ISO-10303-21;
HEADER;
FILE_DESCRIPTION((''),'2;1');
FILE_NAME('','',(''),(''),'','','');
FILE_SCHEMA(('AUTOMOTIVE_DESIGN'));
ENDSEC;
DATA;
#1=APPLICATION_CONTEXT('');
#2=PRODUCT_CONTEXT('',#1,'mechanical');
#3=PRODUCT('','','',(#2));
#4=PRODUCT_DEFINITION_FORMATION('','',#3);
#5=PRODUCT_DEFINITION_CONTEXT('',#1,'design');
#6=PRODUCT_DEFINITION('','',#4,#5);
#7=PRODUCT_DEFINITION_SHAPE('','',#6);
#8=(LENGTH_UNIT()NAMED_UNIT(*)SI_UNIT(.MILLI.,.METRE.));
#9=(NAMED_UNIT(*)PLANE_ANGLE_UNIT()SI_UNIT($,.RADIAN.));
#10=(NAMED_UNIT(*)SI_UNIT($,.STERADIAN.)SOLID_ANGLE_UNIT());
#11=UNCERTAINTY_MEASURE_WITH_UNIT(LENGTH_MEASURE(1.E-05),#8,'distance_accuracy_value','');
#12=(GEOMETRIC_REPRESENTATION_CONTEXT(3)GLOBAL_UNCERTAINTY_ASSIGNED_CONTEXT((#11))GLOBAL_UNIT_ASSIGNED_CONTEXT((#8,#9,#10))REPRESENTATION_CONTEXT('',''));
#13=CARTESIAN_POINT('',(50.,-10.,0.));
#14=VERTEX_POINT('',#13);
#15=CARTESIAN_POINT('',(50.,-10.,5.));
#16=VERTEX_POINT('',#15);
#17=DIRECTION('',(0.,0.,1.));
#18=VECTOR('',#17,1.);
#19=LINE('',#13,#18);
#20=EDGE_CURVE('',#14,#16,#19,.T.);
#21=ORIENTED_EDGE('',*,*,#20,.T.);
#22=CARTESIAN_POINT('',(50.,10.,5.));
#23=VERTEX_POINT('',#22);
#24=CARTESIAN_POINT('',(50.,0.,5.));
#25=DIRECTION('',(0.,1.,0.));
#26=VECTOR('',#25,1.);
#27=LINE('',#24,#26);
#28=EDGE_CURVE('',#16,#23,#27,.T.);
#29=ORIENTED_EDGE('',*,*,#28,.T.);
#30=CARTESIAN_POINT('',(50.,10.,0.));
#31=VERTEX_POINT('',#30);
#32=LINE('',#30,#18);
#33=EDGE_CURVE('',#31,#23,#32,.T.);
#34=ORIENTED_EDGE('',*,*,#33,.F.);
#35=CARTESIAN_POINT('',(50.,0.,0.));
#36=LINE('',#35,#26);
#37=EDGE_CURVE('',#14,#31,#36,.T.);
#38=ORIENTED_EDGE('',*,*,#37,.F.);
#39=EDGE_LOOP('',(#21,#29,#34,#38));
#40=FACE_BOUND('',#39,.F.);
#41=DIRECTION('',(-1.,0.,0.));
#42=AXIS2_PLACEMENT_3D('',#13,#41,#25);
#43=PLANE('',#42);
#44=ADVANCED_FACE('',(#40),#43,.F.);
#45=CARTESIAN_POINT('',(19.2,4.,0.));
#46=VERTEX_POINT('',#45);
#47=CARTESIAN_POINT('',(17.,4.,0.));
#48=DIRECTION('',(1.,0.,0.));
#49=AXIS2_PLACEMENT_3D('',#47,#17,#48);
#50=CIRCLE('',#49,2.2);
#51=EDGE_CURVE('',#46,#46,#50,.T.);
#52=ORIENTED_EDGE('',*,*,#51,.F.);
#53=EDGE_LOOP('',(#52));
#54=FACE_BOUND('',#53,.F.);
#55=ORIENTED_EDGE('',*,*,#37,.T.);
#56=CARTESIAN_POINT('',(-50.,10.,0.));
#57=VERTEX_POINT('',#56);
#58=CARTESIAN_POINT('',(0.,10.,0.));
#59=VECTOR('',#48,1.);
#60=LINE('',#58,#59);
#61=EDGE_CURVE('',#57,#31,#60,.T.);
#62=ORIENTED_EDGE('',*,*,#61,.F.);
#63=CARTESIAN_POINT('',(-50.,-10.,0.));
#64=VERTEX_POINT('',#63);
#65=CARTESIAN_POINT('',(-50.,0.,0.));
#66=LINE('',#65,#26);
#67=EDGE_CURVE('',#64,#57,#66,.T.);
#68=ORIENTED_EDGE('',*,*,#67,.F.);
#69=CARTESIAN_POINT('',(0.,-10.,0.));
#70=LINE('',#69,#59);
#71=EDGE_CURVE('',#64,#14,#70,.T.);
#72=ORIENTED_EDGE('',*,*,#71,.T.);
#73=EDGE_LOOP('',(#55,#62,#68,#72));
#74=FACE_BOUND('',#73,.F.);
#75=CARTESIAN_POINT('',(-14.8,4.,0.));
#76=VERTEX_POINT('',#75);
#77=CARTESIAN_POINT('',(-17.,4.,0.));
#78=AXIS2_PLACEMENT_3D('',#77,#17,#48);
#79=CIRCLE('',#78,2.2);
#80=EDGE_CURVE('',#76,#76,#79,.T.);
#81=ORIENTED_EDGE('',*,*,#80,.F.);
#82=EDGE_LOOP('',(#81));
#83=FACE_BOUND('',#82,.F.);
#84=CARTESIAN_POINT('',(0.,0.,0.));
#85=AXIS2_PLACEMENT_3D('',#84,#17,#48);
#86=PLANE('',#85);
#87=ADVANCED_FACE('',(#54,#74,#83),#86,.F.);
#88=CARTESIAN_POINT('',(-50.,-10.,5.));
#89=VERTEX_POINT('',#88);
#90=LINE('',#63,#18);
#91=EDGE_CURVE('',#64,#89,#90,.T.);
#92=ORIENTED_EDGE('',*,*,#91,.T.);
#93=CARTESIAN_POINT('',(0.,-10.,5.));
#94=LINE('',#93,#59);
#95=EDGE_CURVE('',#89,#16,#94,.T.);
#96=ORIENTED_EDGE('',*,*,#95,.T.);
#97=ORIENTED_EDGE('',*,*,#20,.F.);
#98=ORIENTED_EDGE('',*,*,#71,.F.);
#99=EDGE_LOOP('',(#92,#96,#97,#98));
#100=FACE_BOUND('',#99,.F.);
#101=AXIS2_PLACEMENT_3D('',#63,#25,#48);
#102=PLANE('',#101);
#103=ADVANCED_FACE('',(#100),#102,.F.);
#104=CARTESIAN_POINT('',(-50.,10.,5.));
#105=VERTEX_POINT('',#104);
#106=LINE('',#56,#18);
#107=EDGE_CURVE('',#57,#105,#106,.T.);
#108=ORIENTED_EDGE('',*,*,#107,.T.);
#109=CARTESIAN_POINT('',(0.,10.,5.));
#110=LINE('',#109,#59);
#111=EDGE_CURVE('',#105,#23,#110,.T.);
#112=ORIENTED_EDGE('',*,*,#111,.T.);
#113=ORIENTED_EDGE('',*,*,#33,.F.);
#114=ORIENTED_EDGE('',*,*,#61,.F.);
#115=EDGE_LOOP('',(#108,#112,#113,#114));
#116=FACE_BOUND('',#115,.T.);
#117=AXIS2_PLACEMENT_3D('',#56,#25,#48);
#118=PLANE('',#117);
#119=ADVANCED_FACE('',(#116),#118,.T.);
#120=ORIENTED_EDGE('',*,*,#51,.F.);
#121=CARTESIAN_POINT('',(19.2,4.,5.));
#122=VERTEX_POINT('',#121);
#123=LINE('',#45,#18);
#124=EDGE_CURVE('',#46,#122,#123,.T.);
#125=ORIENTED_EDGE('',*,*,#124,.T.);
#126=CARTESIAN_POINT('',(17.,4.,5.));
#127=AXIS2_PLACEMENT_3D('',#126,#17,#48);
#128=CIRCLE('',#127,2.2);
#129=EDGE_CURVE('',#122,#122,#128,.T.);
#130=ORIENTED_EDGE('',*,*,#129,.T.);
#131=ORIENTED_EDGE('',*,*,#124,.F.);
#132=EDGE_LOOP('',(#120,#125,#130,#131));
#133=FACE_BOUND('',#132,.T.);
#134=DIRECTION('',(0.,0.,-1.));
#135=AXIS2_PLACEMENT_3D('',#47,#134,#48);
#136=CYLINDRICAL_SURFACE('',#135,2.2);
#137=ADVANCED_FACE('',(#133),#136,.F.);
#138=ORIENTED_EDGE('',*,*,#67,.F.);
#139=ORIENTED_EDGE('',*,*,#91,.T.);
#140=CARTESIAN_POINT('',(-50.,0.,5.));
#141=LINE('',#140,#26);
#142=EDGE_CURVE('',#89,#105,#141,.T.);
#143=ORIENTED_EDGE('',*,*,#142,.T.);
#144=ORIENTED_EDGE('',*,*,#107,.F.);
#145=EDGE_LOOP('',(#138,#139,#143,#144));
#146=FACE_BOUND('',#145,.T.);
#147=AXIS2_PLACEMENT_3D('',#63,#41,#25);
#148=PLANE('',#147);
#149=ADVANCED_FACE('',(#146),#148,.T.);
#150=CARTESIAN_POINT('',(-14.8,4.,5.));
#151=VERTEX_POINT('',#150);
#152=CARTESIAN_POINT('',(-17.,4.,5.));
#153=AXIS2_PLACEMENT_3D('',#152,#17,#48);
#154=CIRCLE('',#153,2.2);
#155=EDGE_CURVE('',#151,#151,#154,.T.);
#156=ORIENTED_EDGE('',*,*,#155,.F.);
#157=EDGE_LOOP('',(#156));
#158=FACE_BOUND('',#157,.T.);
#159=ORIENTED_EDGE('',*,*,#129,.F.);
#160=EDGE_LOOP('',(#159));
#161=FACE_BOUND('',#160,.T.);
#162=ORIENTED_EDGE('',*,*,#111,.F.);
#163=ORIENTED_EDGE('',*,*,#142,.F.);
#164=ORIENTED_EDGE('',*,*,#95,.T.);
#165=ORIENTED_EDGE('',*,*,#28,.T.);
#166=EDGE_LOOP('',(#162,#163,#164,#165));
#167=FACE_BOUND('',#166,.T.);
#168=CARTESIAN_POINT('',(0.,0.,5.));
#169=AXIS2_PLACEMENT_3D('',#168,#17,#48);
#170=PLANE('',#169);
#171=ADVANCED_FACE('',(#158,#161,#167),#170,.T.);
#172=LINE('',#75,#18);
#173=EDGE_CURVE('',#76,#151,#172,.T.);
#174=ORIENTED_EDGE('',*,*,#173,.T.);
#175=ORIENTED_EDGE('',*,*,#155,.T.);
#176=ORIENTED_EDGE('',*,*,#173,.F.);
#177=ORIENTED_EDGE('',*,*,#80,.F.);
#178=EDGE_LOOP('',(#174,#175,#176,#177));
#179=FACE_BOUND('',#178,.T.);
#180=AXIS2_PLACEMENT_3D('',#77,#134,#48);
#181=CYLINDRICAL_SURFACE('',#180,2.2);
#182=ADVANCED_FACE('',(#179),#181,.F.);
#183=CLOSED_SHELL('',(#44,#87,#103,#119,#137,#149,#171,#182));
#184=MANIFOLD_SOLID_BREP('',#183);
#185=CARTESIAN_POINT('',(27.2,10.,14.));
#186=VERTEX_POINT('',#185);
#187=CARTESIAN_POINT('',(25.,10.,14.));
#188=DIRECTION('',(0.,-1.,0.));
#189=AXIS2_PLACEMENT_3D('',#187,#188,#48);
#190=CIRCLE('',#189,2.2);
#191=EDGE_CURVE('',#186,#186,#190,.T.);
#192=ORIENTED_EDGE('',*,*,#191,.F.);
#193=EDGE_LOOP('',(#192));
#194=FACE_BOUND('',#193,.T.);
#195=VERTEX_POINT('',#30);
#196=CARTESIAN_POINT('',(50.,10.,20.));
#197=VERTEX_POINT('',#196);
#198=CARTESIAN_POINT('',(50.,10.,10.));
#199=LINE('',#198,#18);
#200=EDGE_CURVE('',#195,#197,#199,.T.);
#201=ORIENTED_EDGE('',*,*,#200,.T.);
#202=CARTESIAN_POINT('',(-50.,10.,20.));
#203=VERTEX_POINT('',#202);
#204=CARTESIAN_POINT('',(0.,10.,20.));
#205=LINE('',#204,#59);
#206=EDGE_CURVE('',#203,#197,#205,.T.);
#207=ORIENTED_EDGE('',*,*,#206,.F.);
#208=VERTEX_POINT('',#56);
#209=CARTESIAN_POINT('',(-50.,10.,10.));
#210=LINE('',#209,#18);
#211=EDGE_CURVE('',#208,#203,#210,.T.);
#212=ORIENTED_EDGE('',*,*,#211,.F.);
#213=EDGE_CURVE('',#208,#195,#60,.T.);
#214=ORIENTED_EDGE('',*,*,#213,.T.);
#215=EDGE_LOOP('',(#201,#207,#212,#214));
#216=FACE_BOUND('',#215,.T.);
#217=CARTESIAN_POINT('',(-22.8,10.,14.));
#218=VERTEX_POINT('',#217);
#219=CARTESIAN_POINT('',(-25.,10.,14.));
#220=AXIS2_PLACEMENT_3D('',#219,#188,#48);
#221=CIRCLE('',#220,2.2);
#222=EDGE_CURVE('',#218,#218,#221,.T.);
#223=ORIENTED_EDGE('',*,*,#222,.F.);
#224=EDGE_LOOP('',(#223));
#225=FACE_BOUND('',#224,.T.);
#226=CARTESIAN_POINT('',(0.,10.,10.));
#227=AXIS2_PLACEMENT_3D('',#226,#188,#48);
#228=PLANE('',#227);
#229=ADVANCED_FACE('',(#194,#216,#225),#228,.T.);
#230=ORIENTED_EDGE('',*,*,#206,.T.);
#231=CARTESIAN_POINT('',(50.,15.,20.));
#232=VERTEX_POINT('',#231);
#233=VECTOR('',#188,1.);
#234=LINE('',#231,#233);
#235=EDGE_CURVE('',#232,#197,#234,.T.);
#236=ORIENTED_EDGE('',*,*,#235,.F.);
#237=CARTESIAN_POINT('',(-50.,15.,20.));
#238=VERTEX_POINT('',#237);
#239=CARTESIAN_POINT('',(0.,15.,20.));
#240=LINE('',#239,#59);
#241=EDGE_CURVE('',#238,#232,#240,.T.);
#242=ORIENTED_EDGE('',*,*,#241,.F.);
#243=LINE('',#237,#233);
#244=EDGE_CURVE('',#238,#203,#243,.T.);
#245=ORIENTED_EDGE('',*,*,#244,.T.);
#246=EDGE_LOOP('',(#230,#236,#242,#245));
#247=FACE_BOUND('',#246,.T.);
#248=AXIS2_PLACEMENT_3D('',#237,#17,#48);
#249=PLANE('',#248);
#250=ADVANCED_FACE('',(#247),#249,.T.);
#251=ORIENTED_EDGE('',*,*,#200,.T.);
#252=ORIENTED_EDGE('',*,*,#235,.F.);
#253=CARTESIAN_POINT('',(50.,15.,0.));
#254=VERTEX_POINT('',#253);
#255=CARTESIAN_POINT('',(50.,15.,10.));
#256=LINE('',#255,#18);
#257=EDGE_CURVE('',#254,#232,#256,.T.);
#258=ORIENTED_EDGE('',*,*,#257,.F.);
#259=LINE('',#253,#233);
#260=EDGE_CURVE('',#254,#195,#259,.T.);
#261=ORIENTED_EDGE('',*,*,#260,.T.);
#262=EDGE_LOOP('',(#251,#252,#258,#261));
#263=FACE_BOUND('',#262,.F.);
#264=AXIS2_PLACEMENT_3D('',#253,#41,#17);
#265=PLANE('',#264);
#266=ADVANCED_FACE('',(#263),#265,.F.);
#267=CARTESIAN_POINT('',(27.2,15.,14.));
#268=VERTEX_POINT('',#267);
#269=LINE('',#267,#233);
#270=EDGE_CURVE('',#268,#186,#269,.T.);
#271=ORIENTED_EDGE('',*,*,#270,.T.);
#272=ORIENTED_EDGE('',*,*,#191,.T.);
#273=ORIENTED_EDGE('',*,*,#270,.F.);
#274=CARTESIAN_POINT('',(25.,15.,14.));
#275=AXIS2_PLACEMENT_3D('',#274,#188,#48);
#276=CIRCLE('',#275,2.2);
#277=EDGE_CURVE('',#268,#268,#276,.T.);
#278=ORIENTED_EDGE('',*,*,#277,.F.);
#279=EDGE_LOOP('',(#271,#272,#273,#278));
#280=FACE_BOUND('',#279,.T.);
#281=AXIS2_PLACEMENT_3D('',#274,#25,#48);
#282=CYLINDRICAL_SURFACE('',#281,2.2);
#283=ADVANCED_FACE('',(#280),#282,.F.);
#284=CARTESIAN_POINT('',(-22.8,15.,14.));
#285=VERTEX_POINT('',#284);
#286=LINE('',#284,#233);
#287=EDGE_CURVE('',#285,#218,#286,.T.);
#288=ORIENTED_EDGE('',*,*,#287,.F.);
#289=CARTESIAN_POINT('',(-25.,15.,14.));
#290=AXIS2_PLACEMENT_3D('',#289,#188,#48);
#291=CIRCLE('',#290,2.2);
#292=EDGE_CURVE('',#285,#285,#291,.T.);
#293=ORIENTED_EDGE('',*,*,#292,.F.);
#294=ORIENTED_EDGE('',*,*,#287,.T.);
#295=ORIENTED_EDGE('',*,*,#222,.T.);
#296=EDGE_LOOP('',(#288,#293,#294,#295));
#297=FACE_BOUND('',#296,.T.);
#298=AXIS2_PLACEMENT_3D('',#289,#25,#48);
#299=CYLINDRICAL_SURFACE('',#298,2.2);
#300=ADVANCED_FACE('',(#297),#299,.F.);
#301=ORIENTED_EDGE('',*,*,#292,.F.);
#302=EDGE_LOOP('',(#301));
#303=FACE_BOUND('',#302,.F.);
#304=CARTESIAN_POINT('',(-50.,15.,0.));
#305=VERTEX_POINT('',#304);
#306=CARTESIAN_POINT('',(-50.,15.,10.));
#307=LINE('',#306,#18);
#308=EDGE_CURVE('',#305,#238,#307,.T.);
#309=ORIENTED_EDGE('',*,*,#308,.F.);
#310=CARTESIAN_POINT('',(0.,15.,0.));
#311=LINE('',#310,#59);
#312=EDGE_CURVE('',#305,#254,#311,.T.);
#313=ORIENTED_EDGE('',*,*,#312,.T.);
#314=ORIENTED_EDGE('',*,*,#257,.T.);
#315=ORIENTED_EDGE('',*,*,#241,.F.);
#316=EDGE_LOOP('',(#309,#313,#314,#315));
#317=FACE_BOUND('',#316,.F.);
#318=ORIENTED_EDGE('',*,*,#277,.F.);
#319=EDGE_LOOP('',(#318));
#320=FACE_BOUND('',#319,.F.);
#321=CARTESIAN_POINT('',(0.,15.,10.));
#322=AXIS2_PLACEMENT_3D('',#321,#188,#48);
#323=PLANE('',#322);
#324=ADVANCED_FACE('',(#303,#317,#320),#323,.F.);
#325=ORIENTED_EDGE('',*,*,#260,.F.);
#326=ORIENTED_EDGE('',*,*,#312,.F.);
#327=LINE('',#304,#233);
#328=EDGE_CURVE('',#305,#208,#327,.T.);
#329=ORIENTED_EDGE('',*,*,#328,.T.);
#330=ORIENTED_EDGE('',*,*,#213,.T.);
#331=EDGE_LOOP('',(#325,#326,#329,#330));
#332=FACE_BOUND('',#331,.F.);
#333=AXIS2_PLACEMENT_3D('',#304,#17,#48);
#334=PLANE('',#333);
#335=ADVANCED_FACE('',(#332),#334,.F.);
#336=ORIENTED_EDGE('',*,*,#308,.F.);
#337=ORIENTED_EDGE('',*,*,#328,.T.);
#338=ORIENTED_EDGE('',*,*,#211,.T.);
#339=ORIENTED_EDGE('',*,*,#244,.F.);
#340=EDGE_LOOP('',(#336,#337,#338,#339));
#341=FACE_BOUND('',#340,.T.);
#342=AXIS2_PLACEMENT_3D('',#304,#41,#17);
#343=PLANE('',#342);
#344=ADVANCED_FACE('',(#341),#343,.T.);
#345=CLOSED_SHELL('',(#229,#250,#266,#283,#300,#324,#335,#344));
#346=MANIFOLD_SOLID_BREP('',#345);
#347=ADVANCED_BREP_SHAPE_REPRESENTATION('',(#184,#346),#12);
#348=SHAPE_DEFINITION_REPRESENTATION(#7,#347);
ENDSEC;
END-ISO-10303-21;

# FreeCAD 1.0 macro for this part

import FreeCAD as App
import Part
import Sketcher
Q = App.Units.Quantity


def add_polygon(sketch, points):
    """Adds a closed chain of lines whose ends are joined by coincident constraints."""
    first, n = sketch.GeometryCount, len(points)
    for a, b in zip(points, points[1:] + points[:1]):
        sketch.addGeometry(Part.LineSegment(App.Vector(*a, 0), App.Vector(*b, 0)), False)
    for i in range(n):
        sketch.addConstraint(Sketcher.Constraint("Coincident", first + i, 2, first + (i + 1) % n, 1))

doc = App.newDocument("Part")
body = doc.addObject("PartDesign::Body", "Body")

sketch1 = doc.addObject("Sketcher::SketchObject", "Sketch")
body.addObject(sketch1)
sketch1.AttachmentSupport = (doc.XY_Plane, [""])
sketch1.MapMode = "FlatFace"
add_polygon(sketch1, [(-50, 10), (-50, -10), (50, -10), (50, 10)])
sketch1.addGeometry(Part.Circle(App.Vector(-17, 4, 0), App.Vector(0, 0, 1), 2.2), False)
sketch1.addGeometry(Part.Circle(App.Vector(17, 4, 0), App.Vector(0, 0, 1), 2.2), False)
sketch1.addConstraint([
    Sketcher.Constraint("Vertical", 0),
    Sketcher.Constraint("Horizontal", 1),
    Sketcher.Constraint("Vertical", 2),
    Sketcher.Constraint("Horizontal", 3),
    Sketcher.Constraint("Equal", 4, 5),
    Sketcher.Constraint("Symmetric", 0, 2, 2, 2, -1, 1),
    Sketcher.Constraint("Symmetric", 4, 3, 5, 3, -2),
    Sketcher.Constraint("Diameter", 4, Q("4.4 mm")),
    Sketcher.Constraint("DistanceX", 1, 1, 1, 2, Q("100 mm")),
    Sketcher.Constraint("DistanceY", 0, 2, 0, 1, Q("20 mm")),
    Sketcher.Constraint("DistanceX", 4, 3, -1, 1, Q("17 mm")),
    Sketcher.Constraint("DistanceY", -1, 1, 4, 3, Q("4 mm")),
])
pad1 = doc.addObject("PartDesign::Pad", "Pad")
body.addObject(pad1)
pad1.Profile = sketch1
pad1.Length = 5
body2 = doc.addObject("PartDesign::Body", "Body001")

sketch2 = doc.addObject("Sketcher::SketchObject", "Sketch001")
body2.addObject(sketch2)
sketch2.AttachmentSupport = (doc.getObject("XZ_Plane001"), [""])
sketch2.MapMode = "FlatFace"
sketch2.AttachmentOffset = App.Placement(App.Vector(0, 0, -15), App.Rotation())
add_polygon(sketch2, [(-50, 20), (-50, 0), (50, 0), (50, 20)])
sketch2.addGeometry(Part.Circle(App.Vector(-25, 14, 0), App.Vector(0, 0, 1), 2.2), False)
sketch2.addGeometry(Part.Circle(App.Vector(25, 14, 0), App.Vector(0, 0, 1), 2.2), False)
sketch2.addConstraint([
    Sketcher.Constraint("Vertical", 0),
    Sketcher.Constraint("Horizontal", 1),
    Sketcher.Constraint("Vertical", 2),
    Sketcher.Constraint("Horizontal", 3),
    Sketcher.Constraint("Equal", 4, 5),
    Sketcher.Constraint("Symmetric", 0, 2, 1, 2, -1, 1),
    Sketcher.Constraint("Symmetric", 4, 3, 5, 3, -2),
    Sketcher.Constraint("Diameter", 4, Q("4.4 mm")),
    Sketcher.Constraint("DistanceX", 1, 1, 1, 2, Q("100 mm")),
    Sketcher.Constraint("DistanceY", 0, 2, 0, 1, Q("20 mm")),
    Sketcher.Constraint("DistanceX", 4, 3, -1, 1, Q("25 mm")),
    Sketcher.Constraint("DistanceY", -1, 1, 4, 3, Q("14 mm")),
])
pad2 = doc.addObject("PartDesign::Pad", "Pad001")
body2.addObject(pad2)
pad2.Profile = sketch2
pad2.Length = 5

doc.recompute()
